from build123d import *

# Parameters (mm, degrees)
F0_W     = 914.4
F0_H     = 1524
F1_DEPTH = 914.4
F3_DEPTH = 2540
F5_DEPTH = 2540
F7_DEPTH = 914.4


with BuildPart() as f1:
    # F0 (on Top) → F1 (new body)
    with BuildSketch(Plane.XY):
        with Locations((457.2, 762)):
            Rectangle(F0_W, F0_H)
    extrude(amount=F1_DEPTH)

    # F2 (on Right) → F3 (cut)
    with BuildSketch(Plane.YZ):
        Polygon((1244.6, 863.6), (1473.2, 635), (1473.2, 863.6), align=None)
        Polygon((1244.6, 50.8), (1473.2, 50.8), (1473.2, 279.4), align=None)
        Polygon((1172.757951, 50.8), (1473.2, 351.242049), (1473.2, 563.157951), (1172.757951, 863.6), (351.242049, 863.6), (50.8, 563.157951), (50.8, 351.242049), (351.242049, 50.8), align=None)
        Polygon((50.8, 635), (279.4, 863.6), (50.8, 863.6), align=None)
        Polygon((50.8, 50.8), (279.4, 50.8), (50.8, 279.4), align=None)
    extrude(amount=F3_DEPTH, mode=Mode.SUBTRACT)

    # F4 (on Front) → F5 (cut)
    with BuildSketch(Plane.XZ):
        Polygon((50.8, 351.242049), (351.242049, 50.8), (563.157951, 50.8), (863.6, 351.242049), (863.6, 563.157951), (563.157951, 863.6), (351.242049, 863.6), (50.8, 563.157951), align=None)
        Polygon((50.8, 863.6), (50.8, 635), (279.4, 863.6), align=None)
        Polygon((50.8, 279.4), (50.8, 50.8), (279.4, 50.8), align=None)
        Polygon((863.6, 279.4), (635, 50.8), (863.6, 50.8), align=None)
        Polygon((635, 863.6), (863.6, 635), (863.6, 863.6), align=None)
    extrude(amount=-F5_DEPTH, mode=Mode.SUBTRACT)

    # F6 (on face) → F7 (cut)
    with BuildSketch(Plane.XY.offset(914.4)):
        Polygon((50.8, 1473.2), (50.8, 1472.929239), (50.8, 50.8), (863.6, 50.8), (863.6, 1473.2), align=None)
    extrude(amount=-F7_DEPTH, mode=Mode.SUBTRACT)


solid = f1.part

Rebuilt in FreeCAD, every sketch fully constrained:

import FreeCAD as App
import Part
import Sketcher
Q = App.Units.Quantity

doc = App.newDocument("Part")
body = doc.addObject("PartDesign::Body", "Body")

# Sketch on XY plane
sketch1 = body.newObject("Sketcher::SketchObject", "Sketch")
sketch1.AttachmentSupport = (doc.getObject("XY_Plane"), [""])
sketch1.MapMode = "FlatFace"
sketch1.addGeometry([
    Part.LineSegment(App.Vector(0, 1524, 0), App.Vector(0, 0, 0)),
    Part.LineSegment(App.Vector(0, 0, 0), App.Vector(914, 0, 0)),
    Part.LineSegment(App.Vector(914, 0, 0), App.Vector(914, 1524, 0)),
    Part.LineSegment(App.Vector(914, 1524, 0), App.Vector(0, 1524, 0)),
], False)
sketch1.addConstraint([
    Sketcher.Constraint("Coincident", 0, 2, 1, 1),
    Sketcher.Constraint("Coincident", 1, 2, 2, 1),
    Sketcher.Constraint("Coincident", 2, 2, 3, 1),
    Sketcher.Constraint("Coincident", 3, 2, 0, 1),
    Sketcher.Constraint("Vertical", 0),
    Sketcher.Constraint("Horizontal", 1),
    Sketcher.Constraint("Vertical", 2),
    Sketcher.Constraint("Horizontal", 3),
    Sketcher.Constraint("Coincident", 0, 2, -1, 1),
    Sketcher.Constraint("DistanceX", 1, 1, 1, 2, Q("36 in")),
    Sketcher.Constraint("DistanceY", 0, 2, 0, 1, Q("60 in")),
])
pad1 = body.newObject("PartDesign::Pad", "Pad")
pad1.Profile = sketch1
pad1.Length = Q("36 in")

# Sketch on YZ plane
sketch2 = body.newObject("Sketcher::SketchObject", "Sketch001")
sketch2.AttachmentSupport = (doc.getObject("YZ_Plane"), [""])
sketch2.MapMode = "FlatFace"
sketch2.addGeometry([
    Part.LineSegment(App.Vector(1245, 864, 0), App.Vector(1473, 635, 0)),  # 0
    Part.LineSegment(App.Vector(1473, 635, 0), App.Vector(1473, 864, 0)),  # 1
    Part.LineSegment(App.Vector(1473, 864, 0), App.Vector(1245, 864, 0)),  # 2
    Part.LineSegment(App.Vector(1245, 51, 0), App.Vector(1473, 51, 0)),  # 3
    Part.LineSegment(App.Vector(1473, 51, 0), App.Vector(1473, 279, 0)),  # 4
    Part.LineSegment(App.Vector(1473, 279, 0), App.Vector(1245, 51, 0)),  # 5
    Part.LineSegment(App.Vector(1173, 51, 0), App.Vector(1473, 351, 0)),  # 6
    Part.LineSegment(App.Vector(1473, 351, 0), App.Vector(1473, 563, 0)),  # 7
    Part.LineSegment(App.Vector(1473, 563, 0), App.Vector(1173, 864, 0)),  # 8
    Part.LineSegment(App.Vector(1173, 864, 0), App.Vector(351, 864, 0)),  # 9
    Part.LineSegment(App.Vector(351, 864, 0), App.Vector(51, 563, 0)),  # 10
    Part.LineSegment(App.Vector(51, 563, 0), App.Vector(51, 351, 0)),  # 11
    Part.LineSegment(App.Vector(51, 351, 0), App.Vector(351, 51, 0)),  # 12
    Part.LineSegment(App.Vector(351, 51, 0), App.Vector(1173, 51, 0)),  # 13
    Part.LineSegment(App.Vector(51, 635, 0), App.Vector(279, 864, 0)),  # 14
    Part.LineSegment(App.Vector(279, 864, 0), App.Vector(51, 864, 0)),  # 15
    Part.LineSegment(App.Vector(51, 864, 0), App.Vector(51, 635, 0)),  # 16
    Part.LineSegment(App.Vector(51, 51, 0), App.Vector(279, 51, 0)),  # 17
    Part.LineSegment(App.Vector(279, 51, 0), App.Vector(51, 279, 0)),  # 18
    Part.LineSegment(App.Vector(51, 279, 0), App.Vector(51, 51, 0)),  # 19
], False)
sketch2.addConstraint([
    Sketcher.Constraint("Coincident", 0, 2, 1, 1),
    Sketcher.Constraint("Coincident", 1, 2, 2, 1),
    Sketcher.Constraint("Coincident", 2, 2, 0, 1),
    Sketcher.Constraint("Coincident", 3, 2, 4, 1),
    Sketcher.Constraint("Coincident", 4, 2, 5, 1),
    Sketcher.Constraint("Coincident", 5, 2, 3, 1),
    Sketcher.Constraint("Coincident", 6, 2, 7, 1),
    Sketcher.Constraint("Coincident", 7, 2, 8, 1),
    Sketcher.Constraint("Coincident", 8, 2, 9, 1),
    Sketcher.Constraint("Coincident", 9, 2, 10, 1),
    Sketcher.Constraint("Coincident", 10, 2, 11, 1),
    Sketcher.Constraint("Coincident", 11, 2, 12, 1),
    Sketcher.Constraint("Coincident", 12, 2, 13, 1),
    Sketcher.Constraint("Coincident", 13, 2, 6, 1),
    Sketcher.Constraint("Coincident", 14, 2, 15, 1),
    Sketcher.Constraint("Coincident", 15, 2, 16, 1),
    Sketcher.Constraint("Coincident", 16, 2, 14, 1),
    Sketcher.Constraint("Coincident", 17, 2, 18, 1),
    Sketcher.Constraint("Coincident", 18, 2, 19, 1),
    Sketcher.Constraint("Coincident", 19, 2, 17, 1),
    Sketcher.Constraint("Vertical", 1),
    Sketcher.Constraint("Horizontal", 2),
    Sketcher.Constraint("Horizontal", 3),
    Sketcher.Constraint("Vertical", 4),
    Sketcher.Constraint("Vertical", 7),
    Sketcher.Constraint("Horizontal", 9),
    Sketcher.Constraint("Vertical", 11),
    Sketcher.Constraint("Horizontal", 13),
    Sketcher.Constraint("Horizontal", 15),
    Sketcher.Constraint("Vertical", 16),
    Sketcher.Constraint("Horizontal", 17),
    Sketcher.Constraint("Vertical", 19),
    Sketcher.Constraint("Perpendicular", 0, 5),
    Sketcher.Constraint("Parallel", 5, 6),
    Sketcher.Constraint("Perpendicular", 6, 8),
    Sketcher.Constraint("Perpendicular", 8, 10),
    Sketcher.Constraint("Perpendicular", 10, 12),
    Sketcher.Constraint("Perpendicular", 12, 14),
    Sketcher.Constraint("Perpendicular", 14, 18),
    Sketcher.Constraint("Horizontal", 2, 2, 8, 2),
    Sketcher.Constraint("Horizontal", 7, 2, 10, 2),
    Sketcher.Constraint("Horizontal", 6, 2, 11, 2),
    Sketcher.Constraint("Horizontal", 5, 2, 12, 2),
    Sketcher.Constraint("Horizontal", 9, 2, 14, 2),
    Sketcher.Constraint("Horizontal", 0, 2, 16, 2),
    Sketcher.Constraint("Horizontal", 13, 2, 17, 2),
    Sketcher.Constraint("Horizontal", 4, 2, 18, 2),
    Sketcher.Constraint("Vertical", 1, 2, 3, 2),
    Sketcher.Constraint("Vertical", 2, 2, 5, 2),
    Sketcher.Constraint("Vertical", 4, 2, 6, 2),
    Sketcher.Constraint("Vertical", 9, 2, 12, 2),
    Sketcher.Constraint("Vertical", 8, 2, 13, 2),
    Sketcher.Constraint("Vertical", 11, 2, 15, 2),
    Sketcher.Constraint("Vertical", 14, 2, 17, 2),
    Sketcher.Constraint("DistanceX", 2, 2, 2, 1, Q("9 in")),
    Sketcher.Constraint("DistanceX", -1, 1, 0, 2, Q("58 in")),
    Sketcher.Constraint("DistanceY", -1, 1, 0, 2, Q("25 in")),
    Sketcher.Constraint("DistanceY", -1, 1, 3, 2, Q("2 in")),
    Sketcher.Constraint("DistanceX", -1, 1, 10, 2, Q("2 in")),
    Sketcher.Constraint("Distance", 6, Q("424.88922 mm")),
])
pocket1 = body.newObject("PartDesign::Pocket", "Pocket")
pocket1.Profile = sketch2
pocket1.Length = Q("100 in")
pocket1.Reversed = True

# Sketch on XZ plane
sketch3 = body.newObject("Sketcher::SketchObject", "Sketch002")
sketch3.AttachmentSupport = (doc.getObject("XZ_Plane"), [""])
sketch3.MapMode = "FlatFace"
sketch3.addGeometry([
    Part.LineSegment(App.Vector(51, 351, 0), App.Vector(351, 51, 0)),  # 0
    Part.LineSegment(App.Vector(351, 51, 0), App.Vector(563, 51, 0)),  # 1
    Part.LineSegment(App.Vector(563, 51, 0), App.Vector(864, 351, 0)),  # 2
    Part.LineSegment(App.Vector(864, 351, 0), App.Vector(864, 563, 0)),  # 3
    Part.LineSegment(App.Vector(864, 563, 0), App.Vector(563, 864, 0)),  # 4
    Part.LineSegment(App.Vector(563, 864, 0), App.Vector(351, 864, 0)),  # 5
    Part.LineSegment(App.Vector(351, 864, 0), App.Vector(51, 563, 0)),  # 6
    Part.LineSegment(App.Vector(51, 563, 0), App.Vector(51, 351, 0)),  # 7
    Part.LineSegment(App.Vector(51, 864, 0), App.Vector(51, 635, 0)),  # 8
    Part.LineSegment(App.Vector(51, 635, 0), App.Vector(279, 864, 0)),  # 9
    Part.LineSegment(App.Vector(279, 864, 0), App.Vector(51, 864, 0)),  # 10
    Part.LineSegment(App.Vector(51, 279, 0), App.Vector(51, 51, 0)),  # 11
    Part.LineSegment(App.Vector(51, 51, 0), App.Vector(279, 51, 0)),  # 12
    Part.LineSegment(App.Vector(279, 51, 0), App.Vector(51, 279, 0)),  # 13
    Part.LineSegment(App.Vector(864, 279, 0), App.Vector(635, 51, 0)),  # 14
    Part.LineSegment(App.Vector(635, 51, 0), App.Vector(864, 51, 0)),  # 15
    Part.LineSegment(App.Vector(864, 51, 0), App.Vector(864, 279, 0)),  # 16
    Part.LineSegment(App.Vector(635, 864, 0), App.Vector(864, 635, 0)),  # 17
    Part.LineSegment(App.Vector(864, 635, 0), App.Vector(864, 864, 0)),  # 18
    Part.LineSegment(App.Vector(864, 864, 0), App.Vector(635, 864, 0)),  # 19
], False)
sketch3.addConstraint([
    Sketcher.Constraint("Coincident", 0, 2, 1, 1),
    Sketcher.Constraint("Coincident", 1, 2, 2, 1),
    Sketcher.Constraint("Coincident", 2, 2, 3, 1),
    Sketcher.Constraint("Coincident", 3, 2, 4, 1),
    Sketcher.Constraint("Coincident", 4, 2, 5, 1),
    Sketcher.Constraint("Coincident", 5, 2, 6, 1),
    Sketcher.Constraint("Coincident", 6, 2, 7, 1),
    Sketcher.Constraint("Coincident", 7, 2, 0, 1),
    Sketcher.Constraint("Coincident", 8, 2, 9, 1),
    Sketcher.Constraint("Coincident", 9, 2, 10, 1),
    Sketcher.Constraint("Coincident", 10, 2, 8, 1),
    Sketcher.Constraint("Coincident", 11, 2, 12, 1),
    Sketcher.Constraint("Coincident", 12, 2, 13, 1),
    Sketcher.Constraint("Coincident", 13, 2, 11, 1),
    Sketcher.Constraint("Coincident", 14, 2, 15, 1),
    Sketcher.Constraint("Coincident", 15, 2, 16, 1),
    Sketcher.Constraint("Coincident", 16, 2, 14, 1),
    Sketcher.Constraint("Coincident", 17, 2, 18, 1),
    Sketcher.Constraint("Coincident", 18, 2, 19, 1),
    Sketcher.Constraint("Coincident", 19, 2, 17, 1),
    Sketcher.Constraint("Horizontal", 1),
    Sketcher.Constraint("Vertical", 3),
    Sketcher.Constraint("Horizontal", 5),
    Sketcher.Constraint("Vertical", 7),
    Sketcher.Constraint("Vertical", 8),
    Sketcher.Constraint("Horizontal", 10),
    Sketcher.Constraint("Vertical", 11),
    Sketcher.Constraint("Horizontal", 12),
    Sketcher.Constraint("Horizontal", 15),
    Sketcher.Constraint("Vertical", 16),
    Sketcher.Constraint("Vertical", 18),
    Sketcher.Constraint("Horizontal", 19),
    Sketcher.Constraint("Perpendicular", 0, 2),
    Sketcher.Constraint("Perpendicular", 2, 4),
    Sketcher.Constraint("Perpendicular", 4, 6),
    Sketcher.Constraint("Parallel", 6, 9),
    Sketcher.Constraint("Perpendicular", 9, 13),
    Sketcher.Constraint("Perpendicular", 13, 14),
    Sketcher.Constraint("Perpendicular", 14, 17),
    Sketcher.Constraint("Horizontal", 3, 2, 6, 2),
    Sketcher.Constraint("Horizontal", 2, 2, 7, 2),
    Sketcher.Constraint("Horizontal", 5, 2, 9, 2),
    Sketcher.Constraint("Horizontal", 1, 2, 11, 2),
    Sketcher.Constraint("Horizontal", 12, 2, 14, 2),
    Sketcher.Constraint("Horizontal", 13, 2, 16, 2),
    Sketcher.Constraint("Horizontal", 8, 2, 17, 2),
    Sketcher.Constraint("Horizontal", 10, 2, 18, 2),
    Sketcher.Constraint("Vertical", 1, 2, 4, 2),
    Sketcher.Constraint("Vertical", 0, 2, 5, 2),
    Sketcher.Constraint("Vertical", 7, 2, 8, 2),
    Sketcher.Constraint("Vertical", 10, 2, 11, 2),
    Sketcher.Constraint("Vertical", 9, 2, 12, 2),
    Sketcher.Constraint("Vertical", 3, 2, 15, 2),
    Sketcher.Constraint("Vertical", 16, 2, 17, 2),
    Sketcher.Constraint("Equal", 5, 3),
    Sketcher.Constraint("DistanceX", 10, 2, 10, 1, Q("9 in")),
    Sketcher.Constraint("DistanceY", -1, 1, 0, 2, Q("2 in")),
    Sketcher.Constraint("DistanceX", -1, 1, 2, 2, Q("34 in")),
    Sketcher.Constraint("DistanceY", -1, 1, 4, 2, Q("34 in")),
    Sketcher.Constraint("Distance", 0, Q("424.88922 mm")),
])
pocket2 = body.newObject("PartDesign::Pocket", "Pocket001")
pocket2.Profile = sketch3
pocket2.Length = Q("100 in")

# Sketch on XY plane
sketch4 = body.newObject("Sketcher::SketchObject", "Sketch003")
sketch4.AttachmentSupport = (doc.getObject("XY_Plane"), [""])
sketch4.MapMode = "FlatFace"
sketch4.AttachmentOffset = App.Placement(App.Vector(0, 0, 36 * 25.4), App.Rotation())
sketch4.addGeometry([
    Part.LineSegment(App.Vector(51, 1473, 0), App.Vector(51, 51, 0)),
    Part.LineSegment(App.Vector(51, 51, 0), App.Vector(864, 51, 0)),
    Part.LineSegment(App.Vector(864, 51, 0), App.Vector(864, 1473, 0)),
    Part.LineSegment(App.Vector(864, 1473, 0), App.Vector(51, 1473, 0)),
], False)
sketch4.addConstraint([
    Sketcher.Constraint("Coincident", 0, 2, 1, 1),
    Sketcher.Constraint("Coincident", 1, 2, 2, 1),
    Sketcher.Constraint("Coincident", 2, 2, 3, 1),
    Sketcher.Constraint("Coincident", 3, 2, 0, 1),
    Sketcher.Constraint("Vertical", 0),
    Sketcher.Constraint("Horizontal", 1),
    Sketcher.Constraint("Vertical", 2),
    Sketcher.Constraint("Horizontal", 3),
    Sketcher.Constraint("DistanceX", 1, 1, 1, 2, Q("32 in")),
    Sketcher.Constraint("DistanceY", 0, 2, 0, 1, Q("56 in")),
    Sketcher.Constraint("DistanceX", -1, 1, 0, 2, Q("2 in")),
    Sketcher.Constraint("DistanceY", -1, 1, 0, 2, Q("2 in")),
])
pocket3 = body.newObject("PartDesign::Pocket", "Pocket002")
pocket3.Profile = sketch4
pocket3.Length = Q("36 in")

doc.recompute()
